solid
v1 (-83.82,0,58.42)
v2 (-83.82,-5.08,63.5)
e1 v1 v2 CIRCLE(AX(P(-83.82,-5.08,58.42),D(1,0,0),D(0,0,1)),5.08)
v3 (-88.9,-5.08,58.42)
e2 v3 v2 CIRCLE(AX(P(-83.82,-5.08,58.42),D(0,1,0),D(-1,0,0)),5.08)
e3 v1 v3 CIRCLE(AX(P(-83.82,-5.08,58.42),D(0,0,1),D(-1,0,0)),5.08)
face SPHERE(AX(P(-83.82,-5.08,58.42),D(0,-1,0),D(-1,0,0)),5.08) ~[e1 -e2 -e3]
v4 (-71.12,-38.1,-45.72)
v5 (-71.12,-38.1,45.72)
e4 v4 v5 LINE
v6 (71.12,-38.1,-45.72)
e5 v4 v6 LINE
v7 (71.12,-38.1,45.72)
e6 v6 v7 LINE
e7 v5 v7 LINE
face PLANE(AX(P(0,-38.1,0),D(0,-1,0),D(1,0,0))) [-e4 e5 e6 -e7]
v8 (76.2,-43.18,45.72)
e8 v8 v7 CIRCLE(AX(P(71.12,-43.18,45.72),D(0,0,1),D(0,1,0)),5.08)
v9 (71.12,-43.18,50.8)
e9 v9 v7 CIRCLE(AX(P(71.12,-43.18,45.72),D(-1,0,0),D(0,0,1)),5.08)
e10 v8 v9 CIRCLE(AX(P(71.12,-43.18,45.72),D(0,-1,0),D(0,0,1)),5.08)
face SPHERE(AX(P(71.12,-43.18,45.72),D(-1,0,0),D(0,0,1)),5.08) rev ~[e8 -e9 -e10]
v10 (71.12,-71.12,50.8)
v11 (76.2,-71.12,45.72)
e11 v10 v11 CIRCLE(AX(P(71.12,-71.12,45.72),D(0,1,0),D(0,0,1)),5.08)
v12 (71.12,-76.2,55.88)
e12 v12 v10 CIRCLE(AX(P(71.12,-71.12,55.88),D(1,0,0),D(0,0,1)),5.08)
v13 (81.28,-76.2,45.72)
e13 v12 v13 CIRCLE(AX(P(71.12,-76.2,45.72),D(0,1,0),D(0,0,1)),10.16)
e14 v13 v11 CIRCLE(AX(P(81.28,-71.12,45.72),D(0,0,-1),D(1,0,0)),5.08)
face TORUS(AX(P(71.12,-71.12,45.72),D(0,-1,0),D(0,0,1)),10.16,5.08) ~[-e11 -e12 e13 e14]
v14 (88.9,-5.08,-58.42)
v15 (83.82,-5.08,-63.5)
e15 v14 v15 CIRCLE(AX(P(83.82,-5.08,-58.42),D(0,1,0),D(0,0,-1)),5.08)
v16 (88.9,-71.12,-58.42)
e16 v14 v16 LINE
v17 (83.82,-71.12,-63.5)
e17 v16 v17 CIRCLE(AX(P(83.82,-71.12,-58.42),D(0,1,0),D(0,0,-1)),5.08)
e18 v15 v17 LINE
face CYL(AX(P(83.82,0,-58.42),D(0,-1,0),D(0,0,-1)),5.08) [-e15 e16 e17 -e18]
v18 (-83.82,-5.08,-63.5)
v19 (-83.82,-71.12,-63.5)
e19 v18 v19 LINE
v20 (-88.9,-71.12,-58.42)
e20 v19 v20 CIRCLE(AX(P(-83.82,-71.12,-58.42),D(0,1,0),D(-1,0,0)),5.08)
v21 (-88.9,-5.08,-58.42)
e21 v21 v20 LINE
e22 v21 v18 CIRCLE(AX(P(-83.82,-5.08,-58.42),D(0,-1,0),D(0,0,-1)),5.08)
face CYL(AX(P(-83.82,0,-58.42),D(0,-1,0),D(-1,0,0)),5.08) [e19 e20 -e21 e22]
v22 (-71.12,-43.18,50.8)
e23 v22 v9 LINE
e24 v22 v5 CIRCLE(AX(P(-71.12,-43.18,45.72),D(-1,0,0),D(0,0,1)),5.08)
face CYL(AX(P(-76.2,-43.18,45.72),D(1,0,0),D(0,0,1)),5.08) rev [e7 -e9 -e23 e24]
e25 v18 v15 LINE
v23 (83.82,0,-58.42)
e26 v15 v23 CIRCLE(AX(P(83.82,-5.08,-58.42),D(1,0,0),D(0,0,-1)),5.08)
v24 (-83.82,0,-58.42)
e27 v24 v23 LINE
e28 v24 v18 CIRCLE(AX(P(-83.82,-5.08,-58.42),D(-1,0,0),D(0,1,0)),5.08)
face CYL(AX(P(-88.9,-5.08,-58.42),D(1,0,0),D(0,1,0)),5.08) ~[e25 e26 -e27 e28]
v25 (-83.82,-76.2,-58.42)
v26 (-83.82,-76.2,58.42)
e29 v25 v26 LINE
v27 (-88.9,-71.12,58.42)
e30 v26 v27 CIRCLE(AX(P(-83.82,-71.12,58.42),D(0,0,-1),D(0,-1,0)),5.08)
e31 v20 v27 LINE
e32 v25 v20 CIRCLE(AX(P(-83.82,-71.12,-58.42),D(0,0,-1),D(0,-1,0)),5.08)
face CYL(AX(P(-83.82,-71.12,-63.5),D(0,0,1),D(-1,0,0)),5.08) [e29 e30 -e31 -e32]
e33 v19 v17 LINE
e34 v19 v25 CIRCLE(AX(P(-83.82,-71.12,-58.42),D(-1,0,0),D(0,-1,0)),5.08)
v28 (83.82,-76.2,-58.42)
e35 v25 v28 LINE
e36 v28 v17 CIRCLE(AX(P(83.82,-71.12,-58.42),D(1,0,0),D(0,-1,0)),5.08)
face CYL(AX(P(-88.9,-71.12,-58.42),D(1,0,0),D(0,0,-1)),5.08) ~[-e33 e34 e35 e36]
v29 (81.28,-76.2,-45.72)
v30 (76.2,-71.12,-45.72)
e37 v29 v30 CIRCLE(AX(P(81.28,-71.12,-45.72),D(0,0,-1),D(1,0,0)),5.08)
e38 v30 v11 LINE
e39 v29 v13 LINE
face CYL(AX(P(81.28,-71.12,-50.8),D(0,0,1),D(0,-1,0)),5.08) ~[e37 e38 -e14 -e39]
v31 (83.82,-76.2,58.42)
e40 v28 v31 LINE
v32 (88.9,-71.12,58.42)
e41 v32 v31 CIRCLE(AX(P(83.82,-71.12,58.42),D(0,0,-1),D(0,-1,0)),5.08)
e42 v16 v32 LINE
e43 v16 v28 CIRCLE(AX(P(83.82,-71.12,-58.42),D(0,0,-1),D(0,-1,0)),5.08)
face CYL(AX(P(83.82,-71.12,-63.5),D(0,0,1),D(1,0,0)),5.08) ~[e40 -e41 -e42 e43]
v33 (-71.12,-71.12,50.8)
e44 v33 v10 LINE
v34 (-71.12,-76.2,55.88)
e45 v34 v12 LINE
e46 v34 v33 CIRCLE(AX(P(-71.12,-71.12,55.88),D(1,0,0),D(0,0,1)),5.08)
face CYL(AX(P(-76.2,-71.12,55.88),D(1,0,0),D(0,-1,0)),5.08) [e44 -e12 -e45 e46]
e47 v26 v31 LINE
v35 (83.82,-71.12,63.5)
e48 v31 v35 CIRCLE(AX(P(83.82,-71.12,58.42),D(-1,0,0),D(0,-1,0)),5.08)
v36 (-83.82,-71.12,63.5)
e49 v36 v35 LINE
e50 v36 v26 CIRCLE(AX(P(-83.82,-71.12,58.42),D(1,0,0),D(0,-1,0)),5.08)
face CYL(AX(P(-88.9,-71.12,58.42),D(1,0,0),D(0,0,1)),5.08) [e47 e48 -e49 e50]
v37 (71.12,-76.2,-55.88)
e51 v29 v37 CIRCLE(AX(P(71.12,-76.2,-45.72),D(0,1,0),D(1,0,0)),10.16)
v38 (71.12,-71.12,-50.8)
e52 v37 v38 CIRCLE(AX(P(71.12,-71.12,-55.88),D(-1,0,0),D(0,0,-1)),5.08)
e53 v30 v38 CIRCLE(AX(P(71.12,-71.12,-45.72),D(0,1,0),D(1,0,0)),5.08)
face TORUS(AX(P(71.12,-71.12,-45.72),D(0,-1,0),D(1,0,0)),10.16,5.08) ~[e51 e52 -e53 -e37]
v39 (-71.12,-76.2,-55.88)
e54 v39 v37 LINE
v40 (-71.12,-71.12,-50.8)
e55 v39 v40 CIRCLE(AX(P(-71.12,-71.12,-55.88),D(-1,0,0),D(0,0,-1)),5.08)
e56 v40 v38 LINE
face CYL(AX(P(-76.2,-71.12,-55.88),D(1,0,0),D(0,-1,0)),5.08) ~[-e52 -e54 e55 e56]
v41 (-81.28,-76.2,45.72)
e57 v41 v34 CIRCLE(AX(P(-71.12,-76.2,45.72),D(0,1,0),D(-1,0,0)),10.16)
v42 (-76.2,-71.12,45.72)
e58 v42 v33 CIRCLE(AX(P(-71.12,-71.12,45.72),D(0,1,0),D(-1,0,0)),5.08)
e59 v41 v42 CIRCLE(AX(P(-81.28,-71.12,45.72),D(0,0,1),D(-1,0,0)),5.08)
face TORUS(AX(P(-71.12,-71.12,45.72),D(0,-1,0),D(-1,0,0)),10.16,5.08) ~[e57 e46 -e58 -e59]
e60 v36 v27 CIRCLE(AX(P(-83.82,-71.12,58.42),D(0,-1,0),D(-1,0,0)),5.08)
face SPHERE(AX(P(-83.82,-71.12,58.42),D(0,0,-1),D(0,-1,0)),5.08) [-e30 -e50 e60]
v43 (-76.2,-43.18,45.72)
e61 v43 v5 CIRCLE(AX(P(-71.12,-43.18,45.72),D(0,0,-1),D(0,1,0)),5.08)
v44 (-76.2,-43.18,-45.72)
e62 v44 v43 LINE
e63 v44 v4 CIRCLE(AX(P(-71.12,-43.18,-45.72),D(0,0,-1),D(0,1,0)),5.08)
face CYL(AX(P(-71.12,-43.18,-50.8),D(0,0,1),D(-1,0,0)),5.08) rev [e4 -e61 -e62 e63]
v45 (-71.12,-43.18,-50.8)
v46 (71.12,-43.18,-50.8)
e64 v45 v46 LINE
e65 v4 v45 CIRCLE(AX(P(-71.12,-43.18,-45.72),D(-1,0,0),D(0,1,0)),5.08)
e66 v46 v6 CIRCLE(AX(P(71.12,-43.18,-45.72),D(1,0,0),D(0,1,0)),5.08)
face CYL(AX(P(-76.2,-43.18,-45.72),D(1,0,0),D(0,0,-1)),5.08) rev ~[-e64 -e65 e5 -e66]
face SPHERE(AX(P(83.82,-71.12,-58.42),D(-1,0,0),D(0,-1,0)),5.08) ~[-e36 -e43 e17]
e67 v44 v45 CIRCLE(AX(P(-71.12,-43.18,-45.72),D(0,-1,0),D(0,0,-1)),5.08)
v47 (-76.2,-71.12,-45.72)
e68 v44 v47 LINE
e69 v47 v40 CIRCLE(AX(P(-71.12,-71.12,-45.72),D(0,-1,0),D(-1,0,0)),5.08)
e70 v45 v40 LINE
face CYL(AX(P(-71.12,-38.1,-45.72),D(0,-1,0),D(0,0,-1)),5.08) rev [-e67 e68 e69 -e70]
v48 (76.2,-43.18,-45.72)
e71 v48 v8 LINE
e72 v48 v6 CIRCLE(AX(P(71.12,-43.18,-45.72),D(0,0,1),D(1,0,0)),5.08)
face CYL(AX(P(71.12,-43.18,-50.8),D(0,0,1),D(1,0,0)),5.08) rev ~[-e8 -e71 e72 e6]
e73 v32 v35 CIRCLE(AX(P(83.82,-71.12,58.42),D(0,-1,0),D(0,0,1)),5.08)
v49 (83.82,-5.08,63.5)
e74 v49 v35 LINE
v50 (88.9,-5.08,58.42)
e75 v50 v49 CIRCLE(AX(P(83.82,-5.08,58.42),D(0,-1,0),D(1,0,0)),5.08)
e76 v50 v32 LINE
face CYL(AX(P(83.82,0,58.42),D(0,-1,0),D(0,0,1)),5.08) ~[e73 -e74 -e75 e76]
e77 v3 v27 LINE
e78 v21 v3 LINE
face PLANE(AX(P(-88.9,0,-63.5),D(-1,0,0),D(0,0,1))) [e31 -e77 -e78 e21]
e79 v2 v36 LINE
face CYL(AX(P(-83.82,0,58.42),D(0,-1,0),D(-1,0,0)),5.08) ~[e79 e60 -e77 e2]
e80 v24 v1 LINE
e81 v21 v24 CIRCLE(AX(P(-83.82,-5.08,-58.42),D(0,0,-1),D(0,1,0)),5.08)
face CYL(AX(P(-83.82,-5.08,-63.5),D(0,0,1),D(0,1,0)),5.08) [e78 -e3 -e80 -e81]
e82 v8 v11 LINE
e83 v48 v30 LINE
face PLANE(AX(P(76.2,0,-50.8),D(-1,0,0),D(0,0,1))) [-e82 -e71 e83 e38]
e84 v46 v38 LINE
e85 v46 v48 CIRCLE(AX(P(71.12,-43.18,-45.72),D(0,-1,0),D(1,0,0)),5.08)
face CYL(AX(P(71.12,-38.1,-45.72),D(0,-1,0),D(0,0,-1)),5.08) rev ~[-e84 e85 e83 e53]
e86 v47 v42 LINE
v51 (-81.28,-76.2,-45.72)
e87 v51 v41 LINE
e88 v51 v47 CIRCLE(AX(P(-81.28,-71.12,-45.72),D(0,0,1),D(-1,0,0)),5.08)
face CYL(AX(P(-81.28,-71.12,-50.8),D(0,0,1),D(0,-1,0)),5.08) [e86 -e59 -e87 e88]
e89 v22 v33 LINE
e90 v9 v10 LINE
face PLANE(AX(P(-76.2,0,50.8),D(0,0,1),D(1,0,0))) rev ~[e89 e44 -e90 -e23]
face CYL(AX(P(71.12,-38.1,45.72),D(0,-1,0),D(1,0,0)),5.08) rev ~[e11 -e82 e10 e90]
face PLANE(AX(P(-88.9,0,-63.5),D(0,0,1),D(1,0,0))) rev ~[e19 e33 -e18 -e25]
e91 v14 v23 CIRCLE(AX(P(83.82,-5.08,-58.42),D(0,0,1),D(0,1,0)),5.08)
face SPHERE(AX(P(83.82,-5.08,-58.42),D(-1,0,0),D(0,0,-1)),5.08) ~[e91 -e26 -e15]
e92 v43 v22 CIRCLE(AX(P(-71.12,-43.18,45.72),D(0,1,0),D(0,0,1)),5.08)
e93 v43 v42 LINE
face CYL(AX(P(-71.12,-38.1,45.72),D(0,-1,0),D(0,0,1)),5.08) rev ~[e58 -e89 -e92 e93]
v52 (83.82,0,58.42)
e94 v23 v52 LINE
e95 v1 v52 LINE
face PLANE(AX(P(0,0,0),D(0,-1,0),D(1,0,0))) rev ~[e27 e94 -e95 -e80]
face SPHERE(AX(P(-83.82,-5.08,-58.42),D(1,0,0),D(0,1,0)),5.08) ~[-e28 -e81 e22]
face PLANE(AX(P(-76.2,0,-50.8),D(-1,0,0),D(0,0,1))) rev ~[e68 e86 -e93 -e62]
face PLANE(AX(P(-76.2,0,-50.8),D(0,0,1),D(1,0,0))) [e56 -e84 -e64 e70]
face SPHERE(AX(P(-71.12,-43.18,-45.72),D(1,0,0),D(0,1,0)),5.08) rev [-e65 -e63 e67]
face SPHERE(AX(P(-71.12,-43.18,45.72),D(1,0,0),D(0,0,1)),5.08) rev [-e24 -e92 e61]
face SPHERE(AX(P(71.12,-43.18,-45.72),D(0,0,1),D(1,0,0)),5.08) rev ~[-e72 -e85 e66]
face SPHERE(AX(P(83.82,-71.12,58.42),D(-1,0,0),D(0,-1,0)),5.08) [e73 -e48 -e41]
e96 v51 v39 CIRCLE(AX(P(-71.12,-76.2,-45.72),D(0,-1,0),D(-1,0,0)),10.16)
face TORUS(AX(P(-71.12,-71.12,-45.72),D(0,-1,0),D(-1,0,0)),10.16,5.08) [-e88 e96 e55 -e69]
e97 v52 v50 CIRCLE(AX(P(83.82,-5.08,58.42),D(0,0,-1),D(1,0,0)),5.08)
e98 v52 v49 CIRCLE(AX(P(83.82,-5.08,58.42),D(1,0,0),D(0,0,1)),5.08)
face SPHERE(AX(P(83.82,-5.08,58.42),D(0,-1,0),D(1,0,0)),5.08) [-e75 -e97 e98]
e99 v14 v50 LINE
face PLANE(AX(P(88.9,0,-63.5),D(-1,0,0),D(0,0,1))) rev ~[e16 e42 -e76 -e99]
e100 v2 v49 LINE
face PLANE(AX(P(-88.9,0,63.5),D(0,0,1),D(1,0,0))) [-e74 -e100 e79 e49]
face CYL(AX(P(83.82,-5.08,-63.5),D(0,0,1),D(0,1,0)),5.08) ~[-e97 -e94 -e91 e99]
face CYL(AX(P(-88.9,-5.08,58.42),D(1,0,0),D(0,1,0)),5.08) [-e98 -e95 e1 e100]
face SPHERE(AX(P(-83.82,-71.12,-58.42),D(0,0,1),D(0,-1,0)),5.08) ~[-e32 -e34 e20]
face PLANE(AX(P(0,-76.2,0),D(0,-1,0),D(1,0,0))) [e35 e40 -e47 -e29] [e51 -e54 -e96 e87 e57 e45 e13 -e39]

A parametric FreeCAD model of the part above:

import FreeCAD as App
import Part
import Sketcher
Q = App.Units.Quantity


def add_polygon(sketch, points):
    """Adds a closed chain of lines whose ends are joined by coincident constraints."""
    first, n = sketch.GeometryCount, len(points)
    for a, b in zip(points, points[1:] + points[:1]):
        sketch.addGeometry(Part.LineSegment(App.Vector(*a, 0), App.Vector(*b, 0)), False)
    for i in range(n):
        sketch.addConstraint(Sketcher.Constraint("Coincident", first + i, 2, first + (i + 1) % n, 1))

doc = App.newDocument("Part")
body = doc.addObject("PartDesign::Body", "Body")

# Sketch on XZ plane
sketch1 = body.newObject("Sketcher::SketchObject", "Sketch")
sketch1.AttachmentSupport = (doc.getObject("XZ_Plane"), [""])
sketch1.MapMode = "FlatFace"
add_polygon(sketch1, [(-89, 64), (-89, -64), (89, -64), (89, 64)])  # lines 0-3
add_polygon(sketch1, [(76, -51), (-76, -51), (-76, 51), (76, 51)])  # lines 4-7
sketch1.addConstraint([
    Sketcher.Constraint("Vertical", 0),
    Sketcher.Constraint("Horizontal", 1),
    Sketcher.Constraint("Vertical", 2),
    Sketcher.Constraint("Horizontal", 3),
    Sketcher.Constraint("Horizontal", 4),
    Sketcher.Constraint("Vertical", 5),
    Sketcher.Constraint("Horizontal", 6),
    Sketcher.Constraint("Vertical", 7),
    Sketcher.Constraint("Symmetric", 0, 2, 2, 2, -1, 1),
    Sketcher.Constraint("Symmetric", 4, 2, 6, 2, -1, 1),
    Sketcher.Constraint("DistanceX", 1, 1, 1, 2, Q("7 in")),
    Sketcher.Constraint("DistanceX", 4, 2, 4, 1, Q("6 in")),
    Sketcher.Constraint("DistanceY", 0, 2, 0, 1, Q("5 in")),
    Sketcher.Constraint("DistanceY", 5, 1, 5, 2, Q("4 in")),
])
pad1 = body.newObject("PartDesign::Pad", "Pad")
pad1.Profile = sketch1
pad1.Length = Q("3 in")

# Sketch on XZ plane
sketch2 = body.newObject("Sketcher::SketchObject", "Sketch001")
sketch2.AttachmentSupport = (doc.getObject("XZ_Plane"), [""])
sketch2.MapMode = "FlatFace"
add_polygon(sketch2, [(-76, 51), (-76, -51), (76, -51), (76, 51)])  # lines 0-3
sketch2.addConstraint([
    Sketcher.Constraint("Vertical", 0),
    Sketcher.Constraint("Horizontal", 1),
    Sketcher.Constraint("Vertical", 2),
    Sketcher.Constraint("Horizontal", 3),
    Sketcher.Constraint("Symmetric", 0, 2, 2, 2, -1, 1),
    Sketcher.Constraint("DistanceX", 1, 1, 1, 2, Q("6 in")),
    Sketcher.Constraint("DistanceY", 0, 2, 0, 1, Q("4 in")),
])
pad2 = body.newObject("PartDesign::Pad", "Pad001")
pad2.Profile = sketch2
pad2.Length = Q("1.5 in")
doc.recompute()

fillet = body.newObject("PartDesign::Fillet", "Fillet")
fillet.Base = (pad2, ["Edge1"])
fillet.UseAllEdges = True
fillet.Radius = Q("0.2 in")

doc.recompute()
